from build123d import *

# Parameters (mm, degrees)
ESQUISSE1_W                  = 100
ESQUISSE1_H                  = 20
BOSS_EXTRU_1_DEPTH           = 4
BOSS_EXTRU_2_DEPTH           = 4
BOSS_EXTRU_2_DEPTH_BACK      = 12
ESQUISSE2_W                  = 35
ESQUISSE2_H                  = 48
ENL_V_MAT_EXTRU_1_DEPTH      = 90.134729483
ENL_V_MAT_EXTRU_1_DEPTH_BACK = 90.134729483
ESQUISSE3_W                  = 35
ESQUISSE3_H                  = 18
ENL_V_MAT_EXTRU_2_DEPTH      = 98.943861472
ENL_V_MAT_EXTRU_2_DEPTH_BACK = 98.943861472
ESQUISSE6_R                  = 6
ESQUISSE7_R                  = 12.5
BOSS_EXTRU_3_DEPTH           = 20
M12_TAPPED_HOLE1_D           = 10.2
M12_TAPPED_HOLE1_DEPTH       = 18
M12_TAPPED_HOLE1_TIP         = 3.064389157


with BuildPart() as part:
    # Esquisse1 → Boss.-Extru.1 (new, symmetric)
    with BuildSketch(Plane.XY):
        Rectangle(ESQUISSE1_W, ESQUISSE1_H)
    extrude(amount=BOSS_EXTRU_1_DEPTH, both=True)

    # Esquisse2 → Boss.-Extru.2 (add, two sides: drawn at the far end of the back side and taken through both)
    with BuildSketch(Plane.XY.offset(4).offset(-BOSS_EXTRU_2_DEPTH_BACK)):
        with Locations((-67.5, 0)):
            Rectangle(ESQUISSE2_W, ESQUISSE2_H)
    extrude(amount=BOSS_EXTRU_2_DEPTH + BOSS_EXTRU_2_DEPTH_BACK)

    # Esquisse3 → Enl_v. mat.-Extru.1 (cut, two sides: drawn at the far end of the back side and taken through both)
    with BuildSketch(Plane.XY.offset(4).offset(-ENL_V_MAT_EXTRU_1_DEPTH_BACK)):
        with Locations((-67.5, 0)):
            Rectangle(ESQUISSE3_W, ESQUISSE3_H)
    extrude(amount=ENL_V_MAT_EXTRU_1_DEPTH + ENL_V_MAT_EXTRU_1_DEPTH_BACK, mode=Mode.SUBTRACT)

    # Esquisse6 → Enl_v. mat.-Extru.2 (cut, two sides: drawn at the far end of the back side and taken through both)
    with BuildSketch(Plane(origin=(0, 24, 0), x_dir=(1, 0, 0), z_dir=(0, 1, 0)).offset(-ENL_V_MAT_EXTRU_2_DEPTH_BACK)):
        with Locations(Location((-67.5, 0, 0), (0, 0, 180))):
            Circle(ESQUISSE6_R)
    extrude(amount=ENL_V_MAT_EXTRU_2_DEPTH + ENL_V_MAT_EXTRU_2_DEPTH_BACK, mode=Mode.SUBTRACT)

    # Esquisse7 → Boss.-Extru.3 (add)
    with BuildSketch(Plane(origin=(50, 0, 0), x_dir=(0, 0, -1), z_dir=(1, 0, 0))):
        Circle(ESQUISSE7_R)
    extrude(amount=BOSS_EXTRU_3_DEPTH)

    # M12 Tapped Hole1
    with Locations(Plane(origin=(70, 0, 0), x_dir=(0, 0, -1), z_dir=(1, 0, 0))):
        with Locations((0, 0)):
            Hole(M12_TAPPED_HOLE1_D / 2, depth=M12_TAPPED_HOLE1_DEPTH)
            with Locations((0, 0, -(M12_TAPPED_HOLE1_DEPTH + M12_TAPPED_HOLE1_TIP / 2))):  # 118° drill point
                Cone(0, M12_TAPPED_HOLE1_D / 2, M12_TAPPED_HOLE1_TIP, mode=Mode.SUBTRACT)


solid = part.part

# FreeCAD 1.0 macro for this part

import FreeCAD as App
import Part
import Sketcher
from FreeCAD import Vector


def add_polygon(sketch, points):
    """Adds a closed chain of lines whose ends are joined by coincident constraints."""
    first, n = sketch.GeometryCount, len(points)
    for a, b in zip(points, points[1:] + points[:1]):
        sketch.addGeometry(Part.LineSegment(App.Vector(*a, 0), App.Vector(*b, 0)), False)
    for i in range(n):
        sketch.addConstraint(Sketcher.Constraint("Coincident", first + i, 2, first + (i + 1) % n, 1))

doc = App.newDocument("Part")
body = doc.addObject("PartDesign::Body", "Body")

# Sketch on XY plane
sketch1 = doc.addObject("Sketcher::SketchObject", "Sketch")
body.addObject(sketch1)
sketch1.AttachmentSupport = (doc.XY_Plane, [""])
sketch1.MapMode = "FlatFace"
add_polygon(sketch1, [(-50, 10), (-50, -10), (50, -10), (50, 10)])  # lines 0-3
sketch1.addConstraint(Sketcher.Constraint("Vertical", 0))
sketch1.addConstraint(Sketcher.Constraint("Horizontal", 1))
sketch1.addConstraint(Sketcher.Constraint("Vertical", 2))
sketch1.addConstraint(Sketcher.Constraint("Horizontal", 3))
sketch1.addConstraint(Sketcher.Constraint("Symmetric", 0, 2, 2, 2, -1, 1))
sketch1.addConstraint(Sketcher.Constraint("DistanceX", 1, 1, 1, 2, 100.0))
sketch1.addConstraint(Sketcher.Constraint("DistanceY", 0, 2, 0, 1, 20.0))
pad1 = doc.addObject("PartDesign::Pad", "Pad")
body.addObject(pad1)
pad1.Profile = sketch1
pad1.Length = 8
pad1.Midplane = True

# Sketch on XY plane
sketch2 = doc.addObject("Sketcher::SketchObject", "Sketch001")
body.addObject(sketch2)
sketch2.AttachmentSupport = (doc.XY_Plane, [""])
sketch2.MapMode = "FlatFace"
sketch2.AttachmentOffset = App.Placement(Vector(0, 0, 4), App.Rotation())
add_polygon(sketch2, [(-85, 24), (-85, -24), (-50, -24), (-50, 24)])  # lines 0-3
sketch2.addConstraint(Sketcher.Constraint("Vertical", 0))
sketch2.addConstraint(Sketcher.Constraint("Horizontal", 1))
sketch2.addConstraint(Sketcher.Constraint("Vertical", 2))
sketch2.addConstraint(Sketcher.Constraint("Horizontal", 3))
sketch2.addConstraint(Sketcher.Constraint("DistanceX", 1, 1, 1, 2, 35.0))
sketch2.addConstraint(Sketcher.Constraint("DistanceY", 0, 2, 0, 1, 48.0))
sketch2.addConstraint(Sketcher.Constraint("DistanceX", 0, 2, -1, 1, 85.0))
sketch2.addConstraint(Sketcher.Constraint("DistanceY", 0, 2, -1, 1, 24.0))
pad2 = doc.addObject("PartDesign::Pad", "Pad001")
body.addObject(pad2)
pad2.Profile = sketch2
pad2.Type = "TwoLengths"
pad2.Length = 4
pad2.Length2 = 12

# Sketch on XY plane
sketch3 = doc.addObject("Sketcher::SketchObject", "Sketch002")
body.addObject(sketch3)
sketch3.AttachmentSupport = (doc.XY_Plane, [""])
sketch3.MapMode = "FlatFace"
sketch3.AttachmentOffset = App.Placement(Vector(0, 0, 4), App.Rotation())
add_polygon(sketch3, [(-85, 9), (-85, -9), (-50, -9), (-50, 9)])  # lines 0-3
sketch3.addConstraint(Sketcher.Constraint("Vertical", 0))
sketch3.addConstraint(Sketcher.Constraint("Horizontal", 1))
sketch3.addConstraint(Sketcher.Constraint("Vertical", 2))
sketch3.addConstraint(Sketcher.Constraint("Horizontal", 3))
sketch3.addConstraint(Sketcher.Constraint("DistanceX", 1, 1, 1, 2, 35.0))
sketch3.addConstraint(Sketcher.Constraint("DistanceY", 0, 2, 0, 1, 18.0))
sketch3.addConstraint(Sketcher.Constraint("DistanceX", 0, 2, -1, 1, 85.0))
sketch3.addConstraint(Sketcher.Constraint("DistanceY", 0, 2, -1, 1, 9.0))
pocket1 = doc.addObject("PartDesign::Pocket", "Pocket")
body.addObject(pocket1)
pocket1.Profile = sketch3
pocket1.Type = "ThroughAll"
pocket1.Midplane = True

# Sketch on XZ plane
sketch4 = doc.addObject("Sketcher::SketchObject", "Sketch003")
body.addObject(sketch4)
sketch4.AttachmentSupport = (doc.XZ_Plane, [""])
sketch4.MapMode = "FlatFace"
sketch4.AttachmentOffset = App.Placement(Vector(0, 0, -24), App.Rotation())
sketch4.addGeometry(Part.Circle(Vector(-68, 0, 0), Vector(0, 0, 1), 6), False)
sketch4.addConstraint(Sketcher.Constraint("PointOnObject", 0, 3, -1))
sketch4.addConstraint(Sketcher.Constraint("Diameter", 0, 12.0))
sketch4.addConstraint(Sketcher.Constraint("DistanceX", 0, 3, -1, 1, 67.5))
pocket2 = doc.addObject("PartDesign::Pocket", "Pocket001")
body.addObject(pocket2)
pocket2.Profile = sketch4
pocket2.Type = "ThroughAll"
pocket2.Midplane = True

# Sketch on YZ plane
sketch5 = doc.addObject("Sketcher::SketchObject", "Sketch004")
body.addObject(sketch5)
sketch5.AttachmentSupport = (doc.YZ_Plane, [""])
sketch5.MapMode = "FlatFace"
sketch5.AttachmentOffset = App.Placement(Vector(0, 0, 50), App.Rotation())
sketch5.addGeometry(Part.Circle(Vector(0, 0, 0), Vector(0, 0, 1), 12), False)
sketch5.addConstraint(Sketcher.Constraint("Coincident", 0, 3, -1, 1))
sketch5.addConstraint(Sketcher.Constraint("Diameter", 0, 25.0))
pad3 = doc.addObject("PartDesign::Pad", "Pad002")
body.addObject(pad3)
pad3.Profile = sketch5
pad3.Length = 20

# Sketch on YZ plane
sketch6 = doc.addObject("Sketcher::SketchObject", "Sketch005")
body.addObject(sketch6)
sketch6.AttachmentSupport = (doc.YZ_Plane, [""])
sketch6.MapMode = "FlatFace"
sketch6.AttachmentOffset = App.Placement(Vector(0, 0, 70), App.Rotation())
sketch6.addGeometry(Part.Circle(Vector(0, 0, 0), Vector(0, 0, 1), 5), False)
sketch6.addConstraint(Sketcher.Constraint("Coincident", 0, 3, -1, 1))
sketch6.addConstraint(Sketcher.Constraint("Diameter", 0, 10.2))
doc.recompute()
hole = doc.addObject("PartDesign::Hole", "Hole")
body.addObject(hole)
hole.Profile = sketch6
hole.ThreadType = "None"
hole.Diameter = 10.2
hole.DepthType = "Dimension"
hole.Depth = 18
hole.DrillPoint = "Angled"
hole.DrillPointAngle = 118

doc.recompute()
